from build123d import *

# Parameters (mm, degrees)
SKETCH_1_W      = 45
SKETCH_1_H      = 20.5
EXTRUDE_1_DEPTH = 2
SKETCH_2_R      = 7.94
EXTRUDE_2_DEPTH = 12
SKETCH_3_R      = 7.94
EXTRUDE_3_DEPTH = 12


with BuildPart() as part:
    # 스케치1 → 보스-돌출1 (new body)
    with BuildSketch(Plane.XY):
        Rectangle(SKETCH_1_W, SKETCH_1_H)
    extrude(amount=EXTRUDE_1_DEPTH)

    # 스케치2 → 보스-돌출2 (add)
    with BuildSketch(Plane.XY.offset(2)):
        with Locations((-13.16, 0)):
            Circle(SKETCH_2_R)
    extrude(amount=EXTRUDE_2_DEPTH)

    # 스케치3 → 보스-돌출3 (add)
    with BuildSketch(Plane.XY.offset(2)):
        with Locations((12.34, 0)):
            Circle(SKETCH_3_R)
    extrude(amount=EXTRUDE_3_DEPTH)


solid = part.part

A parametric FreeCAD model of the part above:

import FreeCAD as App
import Part
import Sketcher
from FreeCAD import Vector


def add_polygon(sketch, points):
    """Adds a closed chain of lines whose ends are joined by coincident constraints."""
    first, n = sketch.GeometryCount, len(points)
    for a, b in zip(points, points[1:] + points[:1]):
        sketch.addGeometry(Part.LineSegment(App.Vector(*a, 0), App.Vector(*b, 0)), False)
    for i in range(n):
        sketch.addConstraint(Sketcher.Constraint("Coincident", first + i, 2, first + (i + 1) % n, 1))

doc = App.newDocument("Part")
body = doc.addObject("PartDesign::Body", "Body")

sketch1 = body.newObject("Sketcher::SketchObject", "Sketch")
sketch1.AttachmentSupport = (doc.getObject("XY_Plane"), [""])
sketch1.MapMode = "FlatFace"
add_polygon(sketch1, [(-22, 10), (-22, -10), (22, -10), (22, 10)])
sketch1.addConstraint([
    Sketcher.Constraint("Vertical", 0),
    Sketcher.Constraint("Horizontal", 1),
    Sketcher.Constraint("Vertical", 2),
    Sketcher.Constraint("Horizontal", 3),
    Sketcher.Constraint("Symmetric", 0, 2, 2, 2, -1, 1),
    Sketcher.Constraint("DistanceX", 1, 1, 1, 2, 45.0),
    Sketcher.Constraint("DistanceY", 0, 2, 0, 1, 20.5),
])
pad1 = body.newObject("PartDesign::Pad", "Pad")
pad1.Profile = sketch1
pad1.Length = 2

sketch2 = body.newObject("Sketcher::SketchObject", "Sketch001")
sketch2.AttachmentSupport = (doc.getObject("XY_Plane"), [""])
sketch2.MapMode = "FlatFace"
sketch2.AttachmentOffset = App.Placement(Vector(0, 0, 2), App.Rotation())
sketch2.addGeometry(Part.Circle(Vector(-13, 0, 0), Vector(0, 0, 1), 8), False)
sketch2.addConstraint([
    Sketcher.Constraint("PointOnObject", 0, 3, -1),
    Sketcher.Constraint("Diameter", 0, 15.88),
    Sketcher.Constraint("DistanceX", 0, 3, -1, 1, 13.16),
])
pad2 = body.newObject("PartDesign::Pad", "Pad001")
pad2.Profile = sketch2
pad2.Length = 12

sketch3 = body.newObject("Sketcher::SketchObject", "Sketch002")
sketch3.AttachmentSupport = (doc.getObject("XY_Plane"), [""])
sketch3.MapMode = "FlatFace"
sketch3.AttachmentOffset = App.Placement(Vector(0, 0, 2), App.Rotation())
sketch3.addGeometry(Part.Circle(Vector(12, 0, 0), Vector(0, 0, 1), 8), False)
sketch3.addConstraint([
    Sketcher.Constraint("PointOnObject", 0, 3, -1),
    Sketcher.Constraint("Diameter", 0, 15.88),
    Sketcher.Constraint("DistanceX", -1, 1, 0, 3, 12.34),
])
pad3 = body.newObject("PartDesign::Pad", "Pad002")
pad3.Profile = sketch3
pad3.Length = 12

doc.recompute()
